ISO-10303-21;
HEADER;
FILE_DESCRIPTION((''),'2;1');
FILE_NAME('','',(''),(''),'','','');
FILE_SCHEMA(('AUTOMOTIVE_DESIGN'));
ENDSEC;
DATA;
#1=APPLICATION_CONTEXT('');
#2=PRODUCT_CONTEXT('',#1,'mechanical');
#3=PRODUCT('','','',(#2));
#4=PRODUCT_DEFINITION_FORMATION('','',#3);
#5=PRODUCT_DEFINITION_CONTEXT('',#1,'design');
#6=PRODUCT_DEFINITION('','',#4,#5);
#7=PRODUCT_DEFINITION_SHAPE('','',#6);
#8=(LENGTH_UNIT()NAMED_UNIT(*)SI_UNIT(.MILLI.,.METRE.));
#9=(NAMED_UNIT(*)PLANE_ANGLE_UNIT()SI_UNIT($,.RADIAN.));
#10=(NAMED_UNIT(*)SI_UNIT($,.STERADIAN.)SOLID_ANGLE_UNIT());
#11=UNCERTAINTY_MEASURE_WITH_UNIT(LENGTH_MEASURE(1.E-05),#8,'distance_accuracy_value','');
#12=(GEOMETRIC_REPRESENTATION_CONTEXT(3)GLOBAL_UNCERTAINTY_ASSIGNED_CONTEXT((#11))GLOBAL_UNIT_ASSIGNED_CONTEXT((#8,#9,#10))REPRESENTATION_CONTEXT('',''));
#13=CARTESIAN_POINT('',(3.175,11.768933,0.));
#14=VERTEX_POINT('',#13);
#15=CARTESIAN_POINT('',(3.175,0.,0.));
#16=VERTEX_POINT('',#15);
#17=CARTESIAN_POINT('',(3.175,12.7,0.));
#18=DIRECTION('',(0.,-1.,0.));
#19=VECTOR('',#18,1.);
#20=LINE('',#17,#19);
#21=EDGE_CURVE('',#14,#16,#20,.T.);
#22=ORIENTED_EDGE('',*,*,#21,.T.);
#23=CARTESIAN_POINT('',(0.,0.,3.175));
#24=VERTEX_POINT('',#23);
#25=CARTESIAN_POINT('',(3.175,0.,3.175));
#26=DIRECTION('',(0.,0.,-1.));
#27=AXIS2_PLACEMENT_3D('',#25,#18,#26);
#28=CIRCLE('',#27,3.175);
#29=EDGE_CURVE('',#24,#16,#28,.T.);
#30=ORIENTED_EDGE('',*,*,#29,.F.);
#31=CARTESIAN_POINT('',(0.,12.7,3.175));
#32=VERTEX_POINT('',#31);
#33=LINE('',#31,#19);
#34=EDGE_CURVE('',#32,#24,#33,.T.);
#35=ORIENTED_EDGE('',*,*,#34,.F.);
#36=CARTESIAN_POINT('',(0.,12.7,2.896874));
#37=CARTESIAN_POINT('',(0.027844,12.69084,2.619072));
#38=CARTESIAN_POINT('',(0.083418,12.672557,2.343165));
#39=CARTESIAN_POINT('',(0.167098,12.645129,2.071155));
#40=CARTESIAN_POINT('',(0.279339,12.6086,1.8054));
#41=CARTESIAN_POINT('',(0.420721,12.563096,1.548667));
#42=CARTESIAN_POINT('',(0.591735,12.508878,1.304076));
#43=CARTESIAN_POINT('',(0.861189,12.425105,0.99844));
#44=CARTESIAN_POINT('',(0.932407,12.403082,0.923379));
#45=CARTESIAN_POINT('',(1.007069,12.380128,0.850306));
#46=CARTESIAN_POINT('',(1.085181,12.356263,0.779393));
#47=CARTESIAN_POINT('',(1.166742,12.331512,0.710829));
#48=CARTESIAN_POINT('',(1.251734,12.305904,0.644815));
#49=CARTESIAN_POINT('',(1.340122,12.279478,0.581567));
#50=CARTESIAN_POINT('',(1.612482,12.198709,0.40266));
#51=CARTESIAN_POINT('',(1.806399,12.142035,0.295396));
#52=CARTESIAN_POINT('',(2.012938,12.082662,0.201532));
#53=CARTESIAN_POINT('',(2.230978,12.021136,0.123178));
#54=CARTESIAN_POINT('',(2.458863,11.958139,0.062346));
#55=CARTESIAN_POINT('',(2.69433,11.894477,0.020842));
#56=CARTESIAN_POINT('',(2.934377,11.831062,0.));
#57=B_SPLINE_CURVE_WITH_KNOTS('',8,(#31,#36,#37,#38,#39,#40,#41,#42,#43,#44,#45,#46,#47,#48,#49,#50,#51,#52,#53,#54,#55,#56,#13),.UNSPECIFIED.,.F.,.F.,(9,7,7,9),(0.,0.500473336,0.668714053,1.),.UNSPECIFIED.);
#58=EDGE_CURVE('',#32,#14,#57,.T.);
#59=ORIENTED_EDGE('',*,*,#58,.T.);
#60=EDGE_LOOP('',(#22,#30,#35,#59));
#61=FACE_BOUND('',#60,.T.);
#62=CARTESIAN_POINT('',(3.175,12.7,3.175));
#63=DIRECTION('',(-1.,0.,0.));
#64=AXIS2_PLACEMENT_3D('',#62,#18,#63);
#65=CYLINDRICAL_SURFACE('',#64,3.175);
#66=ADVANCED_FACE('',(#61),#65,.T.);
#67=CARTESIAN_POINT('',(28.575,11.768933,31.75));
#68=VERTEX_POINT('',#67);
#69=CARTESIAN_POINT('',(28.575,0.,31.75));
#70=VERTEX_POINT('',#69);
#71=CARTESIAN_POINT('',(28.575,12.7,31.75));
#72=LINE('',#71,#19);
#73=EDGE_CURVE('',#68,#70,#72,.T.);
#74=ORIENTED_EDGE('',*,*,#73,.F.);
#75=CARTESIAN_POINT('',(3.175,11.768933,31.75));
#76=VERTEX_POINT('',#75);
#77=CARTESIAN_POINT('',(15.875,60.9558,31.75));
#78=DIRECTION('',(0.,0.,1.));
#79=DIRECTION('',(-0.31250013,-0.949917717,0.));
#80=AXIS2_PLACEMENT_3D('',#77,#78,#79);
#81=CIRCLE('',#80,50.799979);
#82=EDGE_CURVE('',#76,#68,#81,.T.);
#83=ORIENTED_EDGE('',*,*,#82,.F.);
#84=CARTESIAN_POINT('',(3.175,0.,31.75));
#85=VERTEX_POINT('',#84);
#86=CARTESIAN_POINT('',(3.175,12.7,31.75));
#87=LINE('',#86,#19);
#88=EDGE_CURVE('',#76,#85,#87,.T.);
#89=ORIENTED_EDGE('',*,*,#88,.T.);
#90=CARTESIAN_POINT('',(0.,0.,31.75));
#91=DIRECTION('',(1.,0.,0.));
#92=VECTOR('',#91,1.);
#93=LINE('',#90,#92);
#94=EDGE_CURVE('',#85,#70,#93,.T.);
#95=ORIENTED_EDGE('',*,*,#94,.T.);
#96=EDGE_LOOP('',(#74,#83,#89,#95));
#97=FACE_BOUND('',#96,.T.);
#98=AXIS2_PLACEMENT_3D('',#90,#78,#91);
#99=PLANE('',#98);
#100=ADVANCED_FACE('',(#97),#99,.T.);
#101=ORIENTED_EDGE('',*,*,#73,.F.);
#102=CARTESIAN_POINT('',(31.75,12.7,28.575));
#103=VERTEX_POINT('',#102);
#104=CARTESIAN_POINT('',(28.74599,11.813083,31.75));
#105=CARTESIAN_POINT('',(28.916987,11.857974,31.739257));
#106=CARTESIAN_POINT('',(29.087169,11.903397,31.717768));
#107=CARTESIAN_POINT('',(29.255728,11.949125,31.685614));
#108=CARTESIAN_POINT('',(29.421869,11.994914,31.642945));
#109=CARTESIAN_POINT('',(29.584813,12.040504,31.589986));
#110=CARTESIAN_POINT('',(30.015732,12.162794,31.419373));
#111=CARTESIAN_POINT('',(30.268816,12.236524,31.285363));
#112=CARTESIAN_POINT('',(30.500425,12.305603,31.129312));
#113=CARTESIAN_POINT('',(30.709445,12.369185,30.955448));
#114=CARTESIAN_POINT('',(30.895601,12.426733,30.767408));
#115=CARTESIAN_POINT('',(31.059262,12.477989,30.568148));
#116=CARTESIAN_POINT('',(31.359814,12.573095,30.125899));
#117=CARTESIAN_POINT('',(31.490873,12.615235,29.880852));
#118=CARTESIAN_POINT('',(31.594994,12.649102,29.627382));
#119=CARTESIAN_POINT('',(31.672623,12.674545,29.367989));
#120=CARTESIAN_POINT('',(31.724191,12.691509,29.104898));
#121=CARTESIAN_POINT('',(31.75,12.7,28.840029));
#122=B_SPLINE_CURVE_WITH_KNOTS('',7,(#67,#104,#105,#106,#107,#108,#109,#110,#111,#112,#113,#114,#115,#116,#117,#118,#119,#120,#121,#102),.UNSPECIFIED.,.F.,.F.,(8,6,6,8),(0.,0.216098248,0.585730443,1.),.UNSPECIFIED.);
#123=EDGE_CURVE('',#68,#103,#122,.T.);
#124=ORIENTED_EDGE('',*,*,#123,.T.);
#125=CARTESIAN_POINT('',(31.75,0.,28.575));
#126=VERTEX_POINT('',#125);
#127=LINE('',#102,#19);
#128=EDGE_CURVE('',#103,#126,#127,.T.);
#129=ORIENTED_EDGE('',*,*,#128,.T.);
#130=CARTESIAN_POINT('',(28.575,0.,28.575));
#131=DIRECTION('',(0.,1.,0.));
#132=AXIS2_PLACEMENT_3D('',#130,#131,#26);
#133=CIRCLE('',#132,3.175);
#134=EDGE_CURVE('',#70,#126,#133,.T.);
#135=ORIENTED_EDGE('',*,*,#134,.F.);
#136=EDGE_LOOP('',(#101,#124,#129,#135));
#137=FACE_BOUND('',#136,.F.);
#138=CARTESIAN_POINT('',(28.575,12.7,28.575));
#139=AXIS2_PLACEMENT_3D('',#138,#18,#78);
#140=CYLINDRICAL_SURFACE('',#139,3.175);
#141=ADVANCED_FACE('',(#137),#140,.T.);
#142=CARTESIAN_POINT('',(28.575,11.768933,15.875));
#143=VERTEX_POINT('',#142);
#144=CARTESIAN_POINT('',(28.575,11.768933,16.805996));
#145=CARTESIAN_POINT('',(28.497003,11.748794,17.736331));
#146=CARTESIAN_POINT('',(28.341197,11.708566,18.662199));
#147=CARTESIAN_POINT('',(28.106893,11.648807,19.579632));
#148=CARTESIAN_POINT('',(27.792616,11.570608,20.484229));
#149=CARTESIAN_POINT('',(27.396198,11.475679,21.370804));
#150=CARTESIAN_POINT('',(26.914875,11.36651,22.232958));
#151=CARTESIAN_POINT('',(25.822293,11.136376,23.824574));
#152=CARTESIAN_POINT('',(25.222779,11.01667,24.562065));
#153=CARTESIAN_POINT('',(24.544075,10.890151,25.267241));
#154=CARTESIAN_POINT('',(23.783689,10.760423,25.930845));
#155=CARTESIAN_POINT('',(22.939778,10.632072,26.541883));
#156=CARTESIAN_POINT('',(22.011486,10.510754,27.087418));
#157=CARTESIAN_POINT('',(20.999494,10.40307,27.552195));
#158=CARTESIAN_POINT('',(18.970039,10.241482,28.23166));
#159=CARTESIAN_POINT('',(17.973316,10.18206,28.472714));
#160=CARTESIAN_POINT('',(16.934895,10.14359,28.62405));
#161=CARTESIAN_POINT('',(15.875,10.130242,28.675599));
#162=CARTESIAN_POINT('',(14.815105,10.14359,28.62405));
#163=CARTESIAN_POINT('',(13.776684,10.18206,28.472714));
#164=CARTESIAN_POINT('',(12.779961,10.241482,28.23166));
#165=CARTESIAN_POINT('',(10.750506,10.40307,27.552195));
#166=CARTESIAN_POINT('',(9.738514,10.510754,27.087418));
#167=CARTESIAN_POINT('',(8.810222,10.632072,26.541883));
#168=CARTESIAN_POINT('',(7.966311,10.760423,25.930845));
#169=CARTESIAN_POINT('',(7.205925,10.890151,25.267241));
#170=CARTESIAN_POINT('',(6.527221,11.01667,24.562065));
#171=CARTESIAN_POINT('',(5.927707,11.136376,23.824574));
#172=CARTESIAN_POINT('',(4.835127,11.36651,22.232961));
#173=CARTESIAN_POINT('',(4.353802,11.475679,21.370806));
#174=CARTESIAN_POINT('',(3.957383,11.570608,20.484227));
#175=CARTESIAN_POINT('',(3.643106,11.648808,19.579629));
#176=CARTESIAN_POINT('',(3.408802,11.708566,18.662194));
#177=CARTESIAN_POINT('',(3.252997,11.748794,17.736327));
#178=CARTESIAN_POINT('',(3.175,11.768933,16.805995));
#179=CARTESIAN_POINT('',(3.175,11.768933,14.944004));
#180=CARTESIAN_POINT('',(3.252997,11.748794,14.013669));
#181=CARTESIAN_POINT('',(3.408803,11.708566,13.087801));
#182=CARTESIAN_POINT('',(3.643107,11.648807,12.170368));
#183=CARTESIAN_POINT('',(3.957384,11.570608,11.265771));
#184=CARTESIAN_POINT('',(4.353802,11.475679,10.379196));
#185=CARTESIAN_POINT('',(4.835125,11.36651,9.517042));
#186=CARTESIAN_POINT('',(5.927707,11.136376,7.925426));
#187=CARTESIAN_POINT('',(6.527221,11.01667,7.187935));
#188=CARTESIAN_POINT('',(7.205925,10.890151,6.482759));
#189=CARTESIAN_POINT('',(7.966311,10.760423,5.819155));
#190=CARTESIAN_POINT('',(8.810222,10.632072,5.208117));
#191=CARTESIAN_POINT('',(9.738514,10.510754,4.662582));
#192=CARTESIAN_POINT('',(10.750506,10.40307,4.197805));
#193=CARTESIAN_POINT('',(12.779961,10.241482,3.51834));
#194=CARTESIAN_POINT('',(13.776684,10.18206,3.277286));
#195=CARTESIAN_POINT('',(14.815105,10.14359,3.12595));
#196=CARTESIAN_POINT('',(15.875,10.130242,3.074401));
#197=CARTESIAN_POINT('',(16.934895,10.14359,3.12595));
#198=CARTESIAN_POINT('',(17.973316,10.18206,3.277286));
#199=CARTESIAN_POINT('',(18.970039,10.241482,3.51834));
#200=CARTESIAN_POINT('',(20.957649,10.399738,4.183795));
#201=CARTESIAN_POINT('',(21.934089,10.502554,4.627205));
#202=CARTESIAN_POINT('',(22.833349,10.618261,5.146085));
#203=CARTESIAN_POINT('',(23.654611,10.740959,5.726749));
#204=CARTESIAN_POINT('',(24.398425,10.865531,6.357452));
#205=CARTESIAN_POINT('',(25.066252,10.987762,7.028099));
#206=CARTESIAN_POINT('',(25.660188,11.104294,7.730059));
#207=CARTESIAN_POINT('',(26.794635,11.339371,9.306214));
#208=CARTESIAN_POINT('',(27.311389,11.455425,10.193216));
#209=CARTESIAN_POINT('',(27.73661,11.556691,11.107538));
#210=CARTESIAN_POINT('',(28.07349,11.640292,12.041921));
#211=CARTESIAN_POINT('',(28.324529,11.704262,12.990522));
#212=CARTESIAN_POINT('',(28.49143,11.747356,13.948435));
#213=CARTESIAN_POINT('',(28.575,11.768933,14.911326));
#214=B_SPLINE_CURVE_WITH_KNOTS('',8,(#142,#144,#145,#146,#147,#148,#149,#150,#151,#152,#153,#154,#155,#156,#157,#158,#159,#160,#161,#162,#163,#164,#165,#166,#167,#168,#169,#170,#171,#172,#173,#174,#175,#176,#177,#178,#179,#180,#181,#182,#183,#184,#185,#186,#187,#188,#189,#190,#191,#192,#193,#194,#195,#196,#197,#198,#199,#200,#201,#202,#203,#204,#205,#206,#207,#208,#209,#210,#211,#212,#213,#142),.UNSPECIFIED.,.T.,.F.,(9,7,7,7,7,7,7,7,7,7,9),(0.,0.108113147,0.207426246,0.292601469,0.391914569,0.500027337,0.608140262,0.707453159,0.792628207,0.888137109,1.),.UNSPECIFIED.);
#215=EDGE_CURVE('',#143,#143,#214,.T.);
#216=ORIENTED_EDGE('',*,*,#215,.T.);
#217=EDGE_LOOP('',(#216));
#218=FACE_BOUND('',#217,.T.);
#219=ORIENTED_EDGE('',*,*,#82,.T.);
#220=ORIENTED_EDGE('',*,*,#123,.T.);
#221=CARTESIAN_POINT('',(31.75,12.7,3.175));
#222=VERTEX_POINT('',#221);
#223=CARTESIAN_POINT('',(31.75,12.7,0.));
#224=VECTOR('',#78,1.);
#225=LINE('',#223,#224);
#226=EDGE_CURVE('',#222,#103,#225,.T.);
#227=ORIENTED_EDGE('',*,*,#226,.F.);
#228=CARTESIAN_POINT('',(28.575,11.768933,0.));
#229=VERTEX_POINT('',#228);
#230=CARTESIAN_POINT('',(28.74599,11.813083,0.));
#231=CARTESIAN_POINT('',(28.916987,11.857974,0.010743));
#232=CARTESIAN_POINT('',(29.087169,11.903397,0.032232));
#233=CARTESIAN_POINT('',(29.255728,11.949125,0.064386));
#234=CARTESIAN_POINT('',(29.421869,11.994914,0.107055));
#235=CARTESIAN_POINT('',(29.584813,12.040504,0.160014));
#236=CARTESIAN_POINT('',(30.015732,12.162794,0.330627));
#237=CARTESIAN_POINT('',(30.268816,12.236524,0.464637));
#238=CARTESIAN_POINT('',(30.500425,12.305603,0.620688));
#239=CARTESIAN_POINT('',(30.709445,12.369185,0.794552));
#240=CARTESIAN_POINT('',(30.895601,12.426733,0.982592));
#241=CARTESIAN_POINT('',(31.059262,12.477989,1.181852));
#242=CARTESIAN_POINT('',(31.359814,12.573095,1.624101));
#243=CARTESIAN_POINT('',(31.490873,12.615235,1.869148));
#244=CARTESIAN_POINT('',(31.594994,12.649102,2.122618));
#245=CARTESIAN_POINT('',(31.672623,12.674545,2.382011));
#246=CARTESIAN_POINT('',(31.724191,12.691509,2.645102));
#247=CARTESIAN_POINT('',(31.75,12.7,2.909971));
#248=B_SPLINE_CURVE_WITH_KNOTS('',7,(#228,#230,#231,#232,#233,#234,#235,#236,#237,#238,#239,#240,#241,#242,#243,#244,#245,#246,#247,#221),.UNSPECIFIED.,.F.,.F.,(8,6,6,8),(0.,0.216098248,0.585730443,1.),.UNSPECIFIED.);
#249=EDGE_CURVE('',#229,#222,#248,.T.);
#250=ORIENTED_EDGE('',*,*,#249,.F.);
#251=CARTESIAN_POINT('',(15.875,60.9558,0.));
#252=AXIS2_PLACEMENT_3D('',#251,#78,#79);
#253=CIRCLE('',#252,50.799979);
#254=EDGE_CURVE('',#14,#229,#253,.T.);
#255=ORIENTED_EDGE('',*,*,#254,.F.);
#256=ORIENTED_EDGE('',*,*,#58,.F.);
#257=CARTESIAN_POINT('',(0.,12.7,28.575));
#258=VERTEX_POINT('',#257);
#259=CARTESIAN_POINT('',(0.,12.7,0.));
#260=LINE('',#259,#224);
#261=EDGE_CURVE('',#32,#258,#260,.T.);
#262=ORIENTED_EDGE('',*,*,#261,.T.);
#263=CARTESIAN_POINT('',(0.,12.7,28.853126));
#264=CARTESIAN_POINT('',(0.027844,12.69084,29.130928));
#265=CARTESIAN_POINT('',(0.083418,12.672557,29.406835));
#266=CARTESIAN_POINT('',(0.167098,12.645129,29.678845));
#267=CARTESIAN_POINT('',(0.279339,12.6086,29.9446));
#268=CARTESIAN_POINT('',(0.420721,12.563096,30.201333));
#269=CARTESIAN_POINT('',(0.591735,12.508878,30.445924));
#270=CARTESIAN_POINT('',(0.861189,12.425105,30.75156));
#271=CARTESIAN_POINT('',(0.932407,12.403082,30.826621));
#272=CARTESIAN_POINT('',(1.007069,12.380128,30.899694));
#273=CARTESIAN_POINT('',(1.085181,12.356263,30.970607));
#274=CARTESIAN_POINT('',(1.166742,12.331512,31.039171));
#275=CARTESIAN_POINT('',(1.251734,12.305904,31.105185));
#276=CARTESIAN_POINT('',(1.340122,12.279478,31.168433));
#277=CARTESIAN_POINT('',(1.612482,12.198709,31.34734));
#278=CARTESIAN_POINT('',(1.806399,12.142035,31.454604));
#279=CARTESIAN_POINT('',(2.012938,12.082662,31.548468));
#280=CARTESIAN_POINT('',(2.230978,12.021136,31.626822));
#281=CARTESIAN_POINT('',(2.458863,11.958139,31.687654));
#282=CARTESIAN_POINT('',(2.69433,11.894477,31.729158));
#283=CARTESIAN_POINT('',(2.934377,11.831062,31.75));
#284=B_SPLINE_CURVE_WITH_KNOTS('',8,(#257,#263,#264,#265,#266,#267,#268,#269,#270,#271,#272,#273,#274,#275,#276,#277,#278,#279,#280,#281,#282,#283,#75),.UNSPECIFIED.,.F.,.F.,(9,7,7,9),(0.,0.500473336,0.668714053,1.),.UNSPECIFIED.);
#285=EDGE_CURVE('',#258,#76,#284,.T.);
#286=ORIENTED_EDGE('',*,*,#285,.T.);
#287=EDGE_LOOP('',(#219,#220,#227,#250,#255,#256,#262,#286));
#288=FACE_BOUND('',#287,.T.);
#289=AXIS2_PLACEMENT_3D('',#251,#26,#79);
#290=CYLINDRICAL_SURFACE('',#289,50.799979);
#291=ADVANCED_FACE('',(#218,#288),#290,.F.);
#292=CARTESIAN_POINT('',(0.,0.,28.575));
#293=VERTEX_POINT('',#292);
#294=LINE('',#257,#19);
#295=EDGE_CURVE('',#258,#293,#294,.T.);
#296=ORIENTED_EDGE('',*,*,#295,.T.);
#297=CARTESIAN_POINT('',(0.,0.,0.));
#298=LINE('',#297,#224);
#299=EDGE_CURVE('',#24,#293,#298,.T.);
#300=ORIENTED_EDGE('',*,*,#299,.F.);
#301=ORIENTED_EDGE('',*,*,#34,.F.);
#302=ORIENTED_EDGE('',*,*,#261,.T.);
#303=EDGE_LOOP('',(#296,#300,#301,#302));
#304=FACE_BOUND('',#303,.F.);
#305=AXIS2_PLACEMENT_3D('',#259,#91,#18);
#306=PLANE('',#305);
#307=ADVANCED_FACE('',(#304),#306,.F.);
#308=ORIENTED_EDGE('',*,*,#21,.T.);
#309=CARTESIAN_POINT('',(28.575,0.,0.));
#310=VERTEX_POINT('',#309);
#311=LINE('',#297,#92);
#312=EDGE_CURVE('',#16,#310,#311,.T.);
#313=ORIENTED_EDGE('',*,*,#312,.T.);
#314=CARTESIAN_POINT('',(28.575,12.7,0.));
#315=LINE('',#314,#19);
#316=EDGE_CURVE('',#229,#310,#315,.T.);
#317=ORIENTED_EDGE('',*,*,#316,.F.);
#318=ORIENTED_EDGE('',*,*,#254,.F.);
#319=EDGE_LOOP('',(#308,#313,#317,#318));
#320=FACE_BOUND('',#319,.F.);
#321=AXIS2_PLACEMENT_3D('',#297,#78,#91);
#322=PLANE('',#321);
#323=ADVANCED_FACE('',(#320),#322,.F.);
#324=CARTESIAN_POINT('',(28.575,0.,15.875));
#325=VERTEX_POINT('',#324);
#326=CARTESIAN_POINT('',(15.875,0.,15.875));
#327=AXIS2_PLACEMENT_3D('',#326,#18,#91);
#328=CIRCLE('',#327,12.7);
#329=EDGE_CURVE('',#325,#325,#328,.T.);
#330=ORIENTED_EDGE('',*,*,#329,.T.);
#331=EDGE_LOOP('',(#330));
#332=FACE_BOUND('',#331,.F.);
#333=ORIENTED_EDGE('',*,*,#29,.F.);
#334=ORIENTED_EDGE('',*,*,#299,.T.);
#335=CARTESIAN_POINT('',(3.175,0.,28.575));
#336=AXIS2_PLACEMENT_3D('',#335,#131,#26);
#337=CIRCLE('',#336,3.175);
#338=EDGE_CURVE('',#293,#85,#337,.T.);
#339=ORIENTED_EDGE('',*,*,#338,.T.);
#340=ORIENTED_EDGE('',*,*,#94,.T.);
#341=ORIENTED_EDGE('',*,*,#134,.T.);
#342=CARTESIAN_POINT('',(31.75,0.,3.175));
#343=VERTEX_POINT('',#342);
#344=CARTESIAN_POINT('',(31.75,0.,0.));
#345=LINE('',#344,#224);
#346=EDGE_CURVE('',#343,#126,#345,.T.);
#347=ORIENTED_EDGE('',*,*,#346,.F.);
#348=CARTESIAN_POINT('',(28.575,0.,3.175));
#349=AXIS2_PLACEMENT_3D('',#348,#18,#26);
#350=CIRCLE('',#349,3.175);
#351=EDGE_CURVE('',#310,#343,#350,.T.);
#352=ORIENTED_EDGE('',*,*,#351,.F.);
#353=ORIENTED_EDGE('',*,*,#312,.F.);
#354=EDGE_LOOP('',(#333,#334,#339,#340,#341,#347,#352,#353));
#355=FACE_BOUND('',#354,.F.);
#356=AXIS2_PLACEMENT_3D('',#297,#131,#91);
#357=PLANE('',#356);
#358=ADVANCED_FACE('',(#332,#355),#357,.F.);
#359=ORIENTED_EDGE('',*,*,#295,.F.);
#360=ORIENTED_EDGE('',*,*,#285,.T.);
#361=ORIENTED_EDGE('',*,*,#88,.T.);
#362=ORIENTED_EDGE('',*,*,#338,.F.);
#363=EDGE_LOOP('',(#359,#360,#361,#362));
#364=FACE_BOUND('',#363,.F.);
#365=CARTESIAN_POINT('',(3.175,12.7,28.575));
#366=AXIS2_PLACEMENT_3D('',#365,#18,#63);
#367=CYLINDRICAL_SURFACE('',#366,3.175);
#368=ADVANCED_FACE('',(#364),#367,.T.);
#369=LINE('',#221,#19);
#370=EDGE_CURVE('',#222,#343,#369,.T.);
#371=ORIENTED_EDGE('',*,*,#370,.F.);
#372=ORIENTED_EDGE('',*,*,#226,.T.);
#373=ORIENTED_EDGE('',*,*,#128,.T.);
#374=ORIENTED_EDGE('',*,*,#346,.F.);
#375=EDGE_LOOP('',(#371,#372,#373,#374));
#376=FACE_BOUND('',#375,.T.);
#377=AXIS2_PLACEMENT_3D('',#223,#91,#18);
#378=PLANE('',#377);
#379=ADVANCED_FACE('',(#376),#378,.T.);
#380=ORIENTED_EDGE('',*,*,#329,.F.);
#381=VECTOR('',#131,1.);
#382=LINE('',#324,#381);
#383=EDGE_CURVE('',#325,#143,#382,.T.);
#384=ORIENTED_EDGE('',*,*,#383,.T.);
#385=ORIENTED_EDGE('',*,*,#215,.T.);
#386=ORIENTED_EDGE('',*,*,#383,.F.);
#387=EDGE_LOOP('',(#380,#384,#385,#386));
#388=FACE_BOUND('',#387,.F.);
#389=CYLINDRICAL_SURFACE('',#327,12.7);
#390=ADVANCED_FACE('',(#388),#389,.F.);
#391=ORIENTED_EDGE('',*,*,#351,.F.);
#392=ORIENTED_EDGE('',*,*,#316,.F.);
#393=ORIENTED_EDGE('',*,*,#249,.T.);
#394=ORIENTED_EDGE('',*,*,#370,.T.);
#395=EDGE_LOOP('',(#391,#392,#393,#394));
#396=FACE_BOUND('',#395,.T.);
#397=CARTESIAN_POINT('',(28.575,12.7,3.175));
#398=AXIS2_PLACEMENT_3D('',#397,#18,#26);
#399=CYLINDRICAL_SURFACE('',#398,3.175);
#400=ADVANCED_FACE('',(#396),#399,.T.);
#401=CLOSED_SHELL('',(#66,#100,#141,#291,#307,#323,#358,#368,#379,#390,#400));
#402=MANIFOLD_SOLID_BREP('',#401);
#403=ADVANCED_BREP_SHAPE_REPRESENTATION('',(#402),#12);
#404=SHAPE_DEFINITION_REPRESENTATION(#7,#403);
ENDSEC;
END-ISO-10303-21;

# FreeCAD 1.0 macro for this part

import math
import FreeCAD as App
import Part
import Sketcher
Q = App.Units.Quantity


def edges_at(feature, points):
    """Names of the edges that pass closest to the given points."""
    edges = feature.Shape.Edges
    near = lambda p: min(range(len(edges)), key=lambda i: edges[i].distToShape(Part.Vertex(*p))[0])
    return sorted({f"Edge{near(p) + 1}" for p in points})

doc = App.newDocument("Part")
body = doc.addObject("PartDesign::Body", "Body")

sketch1 = body.newObject("Sketcher::SketchObject", "Sketch")
sketch1.AttachmentSupport = (doc.getObject("XY_Plane"), [""])
sketch1.MapMode = "FlatFace"
sketch1.addGeometry([
    Part.LineSegment(App.Vector(0, 12.7, 0), App.Vector(0, 0, 0)),
    Part.LineSegment(App.Vector(0, 0, 0), App.Vector(31.75, 0, 0)),
    Part.LineSegment(App.Vector(31.75, 0, 0), App.Vector(31.75, 12.7, 0)),
    Part.ArcOfCircle(Part.Circle(App.Vector(15.875, 60.9558, 0), App.Vector(0, 0, 1), 50.799979), math.radians(-108.209965), math.radians(-71.790035)),
], False)
sketch1.addConstraint([
    Sketcher.Constraint("Coincident", 0, 2, 1, 1),
    Sketcher.Constraint("Coincident", 1, 2, 2, 1),
    Sketcher.Constraint("Coincident", 2, 2, 3, 2),
    Sketcher.Constraint("Coincident", 3, 1, 0, 1),
    Sketcher.Constraint("Vertical", 0),
    Sketcher.Constraint("Horizontal", 1),
    Sketcher.Constraint("Vertical", 2),
    Sketcher.Constraint("Coincident", 0, 2, -1, 1),
    Sketcher.Constraint("Horizontal", 2, 2, 3, 1),
    Sketcher.Constraint("Radius", 3, Q("2 in")),
    Sketcher.Constraint("DistanceY", 0, 2, 0, 1, Q("0.5 in")),
    Sketcher.Constraint("DistanceX", 1, 1, 1, 2, Q("1.25 in")),
])
pad1 = body.newObject("PartDesign::Pad", "Pad")
pad1.Profile = sketch1
pad1.Length = Q("1.25 in")

sketch2 = body.newObject("Sketcher::SketchObject", "Sketch001")
sketch2.AttachmentSupport = (doc.getObject("XZ_Plane"), [""])
sketch2.MapMode = "FlatFace"
sketch2.addGeometry(Part.Circle(App.Vector(15.875, 15.875, 0), App.Vector(0, 0, 1), 12.7), False)
sketch2.addConstraint([
    Sketcher.Constraint("Diameter", 0, Q("1 in")),
    Sketcher.Constraint("DistanceX", -1, 1, 0, 3, Q("0.625 in")),
    Sketcher.Constraint("DistanceY", -1, 1, 0, 3, Q("0.625 in")),
])
pocket1 = body.newObject("PartDesign::Pocket", "Pocket")
pocket1.Profile = sketch2
pocket1.Type = "ThroughAll"
doc.recompute()

fillet = body.newObject("PartDesign::Fillet", "Fillet")
fillet.Base = (pocket1, edges_at(pocket1, [
    (31.75, 6.35, 31.75),
    (0, 6.35, 31.75),
    (31.75, 6.35, 0),
    (0, 6.35, 0),
]))
fillet.Radius = Q("0.125 in")

doc.recompute()
